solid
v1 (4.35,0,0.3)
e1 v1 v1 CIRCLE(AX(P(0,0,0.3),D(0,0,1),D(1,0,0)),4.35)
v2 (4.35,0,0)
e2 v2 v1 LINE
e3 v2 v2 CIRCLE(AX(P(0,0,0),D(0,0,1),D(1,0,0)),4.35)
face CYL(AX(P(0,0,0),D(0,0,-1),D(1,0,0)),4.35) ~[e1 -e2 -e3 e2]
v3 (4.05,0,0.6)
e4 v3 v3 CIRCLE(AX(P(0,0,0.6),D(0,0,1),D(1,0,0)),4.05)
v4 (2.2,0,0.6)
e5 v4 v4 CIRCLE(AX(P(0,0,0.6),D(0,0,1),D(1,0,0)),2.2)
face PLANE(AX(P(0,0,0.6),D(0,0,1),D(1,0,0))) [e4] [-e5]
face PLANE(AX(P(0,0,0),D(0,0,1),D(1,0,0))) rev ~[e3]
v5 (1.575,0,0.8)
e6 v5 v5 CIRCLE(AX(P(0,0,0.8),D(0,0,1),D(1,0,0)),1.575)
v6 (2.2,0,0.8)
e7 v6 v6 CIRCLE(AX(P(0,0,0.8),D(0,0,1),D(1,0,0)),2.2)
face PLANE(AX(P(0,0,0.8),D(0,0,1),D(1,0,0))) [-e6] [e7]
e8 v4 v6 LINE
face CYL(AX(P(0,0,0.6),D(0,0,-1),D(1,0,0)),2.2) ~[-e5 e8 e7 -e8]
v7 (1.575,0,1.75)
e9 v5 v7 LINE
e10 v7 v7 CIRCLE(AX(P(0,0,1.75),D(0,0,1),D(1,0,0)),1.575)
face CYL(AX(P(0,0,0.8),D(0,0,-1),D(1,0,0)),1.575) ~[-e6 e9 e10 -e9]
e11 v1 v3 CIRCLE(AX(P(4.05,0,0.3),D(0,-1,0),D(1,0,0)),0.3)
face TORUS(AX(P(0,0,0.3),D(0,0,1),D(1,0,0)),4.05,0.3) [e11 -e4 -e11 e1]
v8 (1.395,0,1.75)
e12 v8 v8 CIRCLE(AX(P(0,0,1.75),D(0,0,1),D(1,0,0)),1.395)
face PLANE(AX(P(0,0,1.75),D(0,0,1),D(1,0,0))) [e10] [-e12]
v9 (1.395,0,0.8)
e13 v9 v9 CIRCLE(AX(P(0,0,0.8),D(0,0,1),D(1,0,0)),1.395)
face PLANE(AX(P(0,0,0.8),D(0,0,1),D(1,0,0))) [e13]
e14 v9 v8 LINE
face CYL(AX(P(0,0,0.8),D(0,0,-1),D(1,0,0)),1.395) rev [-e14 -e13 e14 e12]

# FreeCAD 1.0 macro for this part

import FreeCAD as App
import Part
import Sketcher
from FreeCAD import Vector
Q = App.Units.Quantity


def edges_at(feature, points):
    """Names of the edges that pass closest to the given points."""
    edges = feature.Shape.Edges
    near = lambda p: min(range(len(edges)), key=lambda i: edges[i].distToShape(Part.Vertex(*p))[0])
    return sorted({f"Edge{near(p) + 1}" for p in points})

doc = App.newDocument("Part")
body = doc.addObject("PartDesign::Body", "Body")

# Sketch on XY plane
sketch1 = doc.addObject("Sketcher::SketchObject", "Sketch")
body.addObject(sketch1)
sketch1.AttachmentSupport = (doc.XY_Plane, [""])
sketch1.MapMode = "FlatFace"
sketch1.addGeometry(Part.Circle(Vector(0, 0, 0), Vector(0, 0, 1), 4.3), False)
sketch1.addConstraint([
    Sketcher.Constraint("Coincident", 0, 3, -1, 1),
    Sketcher.Constraint("Diameter", 0, Q("8.7 mm")),
])
pad1 = doc.addObject("PartDesign::Pad", "Pad")
body.addObject(pad1)
pad1.Profile = sketch1
pad1.Length = 0.6

# Sketch on XY plane
sketch2 = doc.addObject("Sketcher::SketchObject", "Sketch001")
body.addObject(sketch2)
sketch2.AttachmentSupport = (doc.XY_Plane, [""])
sketch2.MapMode = "FlatFace"
sketch2.AttachmentOffset = App.Placement(Vector(0, 0, 0.6), App.Rotation())
sketch2.addGeometry(Part.Circle(Vector(0, 0, 0), Vector(0, 0, 1), 2.2), False)
sketch2.addConstraint([
    Sketcher.Constraint("Coincident", 0, 3, -1, 1),
    Sketcher.Constraint("Diameter", 0, Q("4.4 mm")),
])
pad2 = doc.addObject("PartDesign::Pad", "Pad001")
body.addObject(pad2)
pad2.Profile = sketch2
pad2.Length = 0.2

# Sketch on XY plane
sketch3 = doc.addObject("Sketcher::SketchObject", "Sketch002")
body.addObject(sketch3)
sketch3.AttachmentSupport = (doc.XY_Plane, [""])
sketch3.MapMode = "FlatFace"
sketch3.AttachmentOffset = App.Placement(Vector(0, 0, 0.8), App.Rotation())
sketch3.addGeometry([
    Part.Circle(Vector(0, 0, 0), Vector(0, 0, 1), 1.6),
    Part.Circle(Vector(0, 0, 0), Vector(0, 0, 1), 1.4),
], False)
sketch3.addConstraint([
    Sketcher.Constraint("Coincident", 0, 3, -1, 1),
    Sketcher.Constraint("Coincident", 1, 3, -1, 1),
    Sketcher.Constraint("Diameter", 0, Q("3.15 mm")),
    Sketcher.Constraint("Diameter", 1, Q("2.79 mm")),
])
pad3 = doc.addObject("PartDesign::Pad", "Pad002")
body.addObject(pad3)
pad3.Profile = sketch3
pad3.Length = 0.95
doc.recompute()

fillet = doc.addObject("PartDesign::Fillet", "Fillet")
body.addObject(fillet)
fillet.Base = (pad3, edges_at(pad3, [(-4.35, 0, 0.6)]))
fillet.Radius = 0.3

doc.recompute()
